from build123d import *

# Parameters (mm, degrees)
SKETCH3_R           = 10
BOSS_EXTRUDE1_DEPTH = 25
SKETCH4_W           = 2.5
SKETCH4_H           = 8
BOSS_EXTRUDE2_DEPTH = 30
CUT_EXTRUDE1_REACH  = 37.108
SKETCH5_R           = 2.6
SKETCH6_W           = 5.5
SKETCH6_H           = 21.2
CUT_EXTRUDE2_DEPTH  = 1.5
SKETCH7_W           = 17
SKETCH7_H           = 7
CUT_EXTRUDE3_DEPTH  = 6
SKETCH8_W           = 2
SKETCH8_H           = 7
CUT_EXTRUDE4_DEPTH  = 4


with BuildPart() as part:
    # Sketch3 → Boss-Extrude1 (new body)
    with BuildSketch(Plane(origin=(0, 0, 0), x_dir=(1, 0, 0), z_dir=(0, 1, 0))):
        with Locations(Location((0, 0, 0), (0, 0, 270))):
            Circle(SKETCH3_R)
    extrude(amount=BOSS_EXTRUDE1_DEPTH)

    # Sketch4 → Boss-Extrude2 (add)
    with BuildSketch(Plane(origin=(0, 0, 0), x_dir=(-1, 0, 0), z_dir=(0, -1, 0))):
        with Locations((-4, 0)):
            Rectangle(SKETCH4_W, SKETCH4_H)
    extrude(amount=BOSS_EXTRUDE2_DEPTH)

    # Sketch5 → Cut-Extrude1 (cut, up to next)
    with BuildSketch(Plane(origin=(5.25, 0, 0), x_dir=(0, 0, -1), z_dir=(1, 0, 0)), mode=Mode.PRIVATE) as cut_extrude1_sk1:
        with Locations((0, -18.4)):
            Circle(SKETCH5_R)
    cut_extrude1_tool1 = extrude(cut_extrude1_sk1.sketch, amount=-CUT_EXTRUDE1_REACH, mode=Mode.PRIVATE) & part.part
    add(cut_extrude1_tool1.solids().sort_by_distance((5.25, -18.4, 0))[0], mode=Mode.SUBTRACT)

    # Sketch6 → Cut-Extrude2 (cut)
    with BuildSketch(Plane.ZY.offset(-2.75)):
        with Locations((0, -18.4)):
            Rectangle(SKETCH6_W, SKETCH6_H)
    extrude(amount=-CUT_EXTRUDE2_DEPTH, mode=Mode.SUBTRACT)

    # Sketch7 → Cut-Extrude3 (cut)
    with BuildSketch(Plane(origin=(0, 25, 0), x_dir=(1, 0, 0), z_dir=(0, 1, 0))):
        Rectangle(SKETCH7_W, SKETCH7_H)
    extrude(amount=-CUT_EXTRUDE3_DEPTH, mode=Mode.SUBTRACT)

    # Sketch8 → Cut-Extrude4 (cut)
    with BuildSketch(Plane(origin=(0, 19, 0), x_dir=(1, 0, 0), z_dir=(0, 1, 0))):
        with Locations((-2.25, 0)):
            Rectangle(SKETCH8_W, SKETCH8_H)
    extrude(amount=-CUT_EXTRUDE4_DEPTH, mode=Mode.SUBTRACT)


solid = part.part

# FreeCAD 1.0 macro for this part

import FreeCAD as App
import Part
import Sketcher
from FreeCAD import Vector
Q = App.Units.Quantity

doc = App.newDocument("Part")
body = doc.addObject("PartDesign::Body", "Body")

sketch1 = body.newObject("Sketcher::SketchObject", "Sketch")
sketch1.AttachmentSupport = (doc.getObject("XZ_Plane"), [""])
sketch1.MapMode = "FlatFace"
sketch1.addGeometry(Part.Circle(Vector(0, 0, 0), Vector(0, 0, 1), 10), False)
sketch1.addConstraint(Sketcher.Constraint("Coincident", 0, 3, -1, 1))
sketch1.addConstraint(Sketcher.Constraint("Diameter", 0, Q("20 mm")))
pad1 = body.newObject("PartDesign::Pad", "Pad")
pad1.Profile = sketch1
pad1.Length = 25
pad1.Reversed = True

sketch2 = body.newObject("Sketcher::SketchObject", "Sketch001")
sketch2.AttachmentSupport = (doc.getObject("XZ_Plane"), [""])
sketch2.MapMode = "FlatFace"
sketch2.addGeometry(Part.LineSegment(Vector(5.25, -4, 0), Vector(5.25, 4, 0)), False)
sketch2.addGeometry(Part.LineSegment(Vector(5.25, 4, 0), Vector(2.75, 4, 0)), False)
sketch2.addGeometry(Part.LineSegment(Vector(2.75, 4, 0), Vector(2.75, -4, 0)), False)
sketch2.addGeometry(Part.LineSegment(Vector(2.75, -4, 0), Vector(5.25, -4, 0)), False)
sketch2.addConstraint(Sketcher.Constraint("Coincident", 0, 2, 1, 1))
sketch2.addConstraint(Sketcher.Constraint("Coincident", 1, 2, 2, 1))
sketch2.addConstraint(Sketcher.Constraint("Coincident", 2, 2, 3, 1))
sketch2.addConstraint(Sketcher.Constraint("Coincident", 3, 2, 0, 1))
sketch2.addConstraint(Sketcher.Constraint("Vertical", 0))
sketch2.addConstraint(Sketcher.Constraint("Horizontal", 1))
sketch2.addConstraint(Sketcher.Constraint("Vertical", 2))
sketch2.addConstraint(Sketcher.Constraint("Horizontal", 3))
sketch2.addConstraint(Sketcher.Constraint("DistanceY", 0, 1, 0, 2, Q("8 mm")))
sketch2.addConstraint(Sketcher.Constraint("DistanceX", 1, 2, 1, 1, Q("2.5 mm")))
sketch2.addConstraint(Sketcher.Constraint("DistanceY", -1, 1, 0, 2, Q("4 mm")))
sketch2.addConstraint(Sketcher.Constraint("DistanceX", -1, 1, 0, 2, Q("5.25 mm")))
pad2 = body.newObject("PartDesign::Pad", "Pad001")
pad2.Profile = sketch2
pad2.Length = 30

sketch3 = body.newObject("Sketcher::SketchObject", "Sketch002")
sketch3.AttachmentSupport = (doc.getObject("YZ_Plane"), [""])
sketch3.MapMode = "FlatFace"
sketch3.AttachmentOffset = App.Placement(Vector(0, 0, 5.25), App.Rotation())
sketch3.addGeometry(Part.Circle(Vector(-18.4, 0, 0), Vector(0, 0, 1), 2.6), False)
sketch3.addConstraint(Sketcher.Constraint("PointOnObject", 0, 3, -1))
sketch3.addConstraint(Sketcher.Constraint("Diameter", 0, Q("5.2 mm")))
sketch3.addConstraint(Sketcher.Constraint("DistanceX", 0, 3, -1, 1, Q("18.4 mm")))
pocket1 = body.newObject("PartDesign::Pocket", "Pocket")
pocket1.Profile = sketch3
pocket1.Type = "UpToFirst"

sketch4 = body.newObject("Sketcher::SketchObject", "Sketch003")
sketch4.AttachmentSupport = (doc.getObject("YZ_Plane"), [""])
sketch4.MapMode = "FlatFace"
sketch4.AttachmentOffset = App.Placement(Vector(0, 0, 2.75), App.Rotation())
sketch4.addGeometry(Part.LineSegment(Vector(-7.8, -2.75, 0), Vector(-29, -2.75, 0)), False)
sketch4.addGeometry(Part.LineSegment(Vector(-29, -2.75, 0), Vector(-29, 2.75, 0)), False)
sketch4.addGeometry(Part.LineSegment(Vector(-29, 2.75, 0), Vector(-7.8, 2.75, 0)), False)
sketch4.addGeometry(Part.LineSegment(Vector(-7.8, 2.75, 0), Vector(-7.8, -2.75, 0)), False)
sketch4.addConstraint(Sketcher.Constraint("Coincident", 0, 2, 1, 1))
sketch4.addConstraint(Sketcher.Constraint("Coincident", 1, 2, 2, 1))
sketch4.addConstraint(Sketcher.Constraint("Coincident", 2, 2, 3, 1))
sketch4.addConstraint(Sketcher.Constraint("Coincident", 3, 2, 0, 1))
sketch4.addConstraint(Sketcher.Constraint("Horizontal", 0))
sketch4.addConstraint(Sketcher.Constraint("Vertical", 1))
sketch4.addConstraint(Sketcher.Constraint("Horizontal", 2))
sketch4.addConstraint(Sketcher.Constraint("Vertical", 3))
sketch4.addConstraint(Sketcher.Constraint("DistanceX", 0, 2, 0, 1, Q("21.2 mm")))
sketch4.addConstraint(Sketcher.Constraint("DistanceY", 1, 1, 1, 2, Q("5.5 mm")))
sketch4.addConstraint(Sketcher.Constraint("DistanceX", 0, 2, -1, 1, Q("29 mm")))
sketch4.addConstraint(Sketcher.Constraint("DistanceY", 0, 2, -1, 1, Q("2.75 mm")))
pocket2 = body.newObject("PartDesign::Pocket", "Pocket001")
pocket2.Profile = sketch4
pocket2.Length = 1.5
pocket2.Reversed = True

sketch5 = body.newObject("Sketcher::SketchObject", "Sketch004")
sketch5.AttachmentSupport = (doc.getObject("XZ_Plane"), [""])
sketch5.MapMode = "FlatFace"
sketch5.AttachmentOffset = App.Placement(Vector(0, 0, -25), App.Rotation())
sketch5.addGeometry(Part.LineSegment(Vector(-8.5, -3.5, 0), Vector(-8.5, 3.5, 0)), False)
sketch5.addGeometry(Part.LineSegment(Vector(-8.5, 3.5, 0), Vector(8.5, 3.5, 0)), False)
sketch5.addGeometry(Part.LineSegment(Vector(8.5, 3.5, 0), Vector(8.5, -3.5, 0)), False)
sketch5.addGeometry(Part.LineSegment(Vector(8.5, -3.5, 0), Vector(-8.5, -3.5, 0)), False)
sketch5.addConstraint(Sketcher.Constraint("Coincident", 0, 2, 1, 1))
sketch5.addConstraint(Sketcher.Constraint("Coincident", 1, 2, 2, 1))
sketch5.addConstraint(Sketcher.Constraint("Coincident", 2, 2, 3, 1))
sketch5.addConstraint(Sketcher.Constraint("Coincident", 3, 2, 0, 1))
sketch5.addConstraint(Sketcher.Constraint("Vertical", 0))
sketch5.addConstraint(Sketcher.Constraint("Horizontal", 1))
sketch5.addConstraint(Sketcher.Constraint("Vertical", 2))
sketch5.addConstraint(Sketcher.Constraint("Horizontal", 3))
sketch5.addConstraint(Sketcher.Constraint("Symmetric", 0, 2, 2, 2, -1, 1))
sketch5.addConstraint(Sketcher.Constraint("DistanceX", 1, 1, 1, 2, Q("17 mm")))
sketch5.addConstraint(Sketcher.Constraint("DistanceY", 0, 1, 0, 2, Q("7 mm")))
pocket3 = body.newObject("PartDesign::Pocket", "Pocket002")
pocket3.Profile = sketch5
pocket3.Length = 6
pocket3.Reversed = True

sketch6 = body.newObject("Sketcher::SketchObject", "Sketch005")
sketch6.AttachmentSupport = (doc.getObject("XZ_Plane"), [""])
sketch6.MapMode = "FlatFace"
sketch6.AttachmentOffset = App.Placement(Vector(0, 0, -19), App.Rotation())
sketch6.addGeometry(Part.LineSegment(Vector(-3.25, -3.5, 0), Vector(-3.25, 3.5, 0)), False)
sketch6.addGeometry(Part.LineSegment(Vector(-3.25, 3.5, 0), Vector(-1.25, 3.5, 0)), False)
sketch6.addGeometry(Part.LineSegment(Vector(-1.25, 3.5, 0), Vector(-1.25, -3.5, 0)), False)
sketch6.addGeometry(Part.LineSegment(Vector(-1.25, -3.5, 0), Vector(-3.25, -3.5, 0)), False)
sketch6.addConstraint(Sketcher.Constraint("Coincident", 0, 2, 1, 1))
sketch6.addConstraint(Sketcher.Constraint("Coincident", 1, 2, 2, 1))
sketch6.addConstraint(Sketcher.Constraint("Coincident", 2, 2, 3, 1))
sketch6.addConstraint(Sketcher.Constraint("Coincident", 3, 2, 0, 1))
sketch6.addConstraint(Sketcher.Constraint("Vertical", 0))
sketch6.addConstraint(Sketcher.Constraint("Horizontal", 1))
sketch6.addConstraint(Sketcher.Constraint("Vertical", 2))
sketch6.addConstraint(Sketcher.Constraint("Horizontal", 3))
sketch6.addConstraint(Sketcher.Constraint("DistanceX", 1, 1, 1, 2, Q("2 mm")))
sketch6.addConstraint(Sketcher.Constraint("DistanceY", 0, 1, 0, 2, Q("7 mm")))
sketch6.addConstraint(Sketcher.Constraint("DistanceY", -1, 1, 0, 2, Q("3.5 mm")))
sketch6.addConstraint(Sketcher.Constraint("DistanceX", 0, 2, -1, 1, Q("3.25 mm")))
pocket4 = body.newObject("PartDesign::Pocket", "Pocket003")
pocket4.Profile = sketch6
pocket4.Length = 4
pocket4.Reversed = True

doc.recompute()
